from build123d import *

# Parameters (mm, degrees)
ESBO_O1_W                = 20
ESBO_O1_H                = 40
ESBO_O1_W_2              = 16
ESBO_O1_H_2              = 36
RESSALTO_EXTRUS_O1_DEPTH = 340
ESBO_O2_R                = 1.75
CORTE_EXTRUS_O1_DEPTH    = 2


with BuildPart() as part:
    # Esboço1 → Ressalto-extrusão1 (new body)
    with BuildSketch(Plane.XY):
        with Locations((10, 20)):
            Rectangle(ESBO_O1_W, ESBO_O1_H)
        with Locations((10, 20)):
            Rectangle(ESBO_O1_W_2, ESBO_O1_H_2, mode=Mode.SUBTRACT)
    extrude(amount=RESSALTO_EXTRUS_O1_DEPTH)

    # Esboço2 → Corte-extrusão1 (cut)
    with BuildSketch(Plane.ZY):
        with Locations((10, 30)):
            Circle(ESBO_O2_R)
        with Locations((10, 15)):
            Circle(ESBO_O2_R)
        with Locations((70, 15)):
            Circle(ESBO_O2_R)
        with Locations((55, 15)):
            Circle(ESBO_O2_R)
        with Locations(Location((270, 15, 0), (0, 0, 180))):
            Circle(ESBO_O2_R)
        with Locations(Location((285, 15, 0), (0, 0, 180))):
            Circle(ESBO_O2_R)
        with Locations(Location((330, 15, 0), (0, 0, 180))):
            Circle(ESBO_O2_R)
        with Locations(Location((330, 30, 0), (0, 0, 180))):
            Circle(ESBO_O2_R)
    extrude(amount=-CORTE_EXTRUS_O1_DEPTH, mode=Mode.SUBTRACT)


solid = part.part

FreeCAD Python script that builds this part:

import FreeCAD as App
import Part
import Sketcher

doc = App.newDocument("Part")
params = doc.addObject("Spreadsheet::Sheet", "Params")
for row, (alias, value) in enumerate([
    ("sketch1_width", "20 mm"),
    ("sketch1_width2", "16 mm"),
    ("sketch1_height", "40 mm"),
    ("sketch1_height2", "36 mm"),
    ("pad1_length", "340 mm"),
    ("sketch2_diameter", "3.5 mm"),
    ("pocket1_length", "2 mm"),
], start=1):
    params.set(f"A{row}", alias)
    params.set(f"B{row}", "=" + value)
    params.setAlias(f"B{row}", alias)

body = doc.addObject("PartDesign::Body", "Body")

sketch1 = doc.addObject("Sketcher::SketchObject", "Sketch")
body.addObject(sketch1)
sketch1.AttachmentSupport = (doc.XY_Plane, [""])
sketch1.MapMode = "FlatFace"
sketch1.addGeometry([
    Part.LineSegment(App.Vector(0, 40, 0), App.Vector(0, 0, 0)),
    Part.LineSegment(App.Vector(0, 0, 0), App.Vector(20, 0, 0)),
    Part.LineSegment(App.Vector(20, 0, 0), App.Vector(20, 40, 0)),
    Part.LineSegment(App.Vector(20, 40, 0), App.Vector(0, 40, 0)),
    Part.LineSegment(App.Vector(18, 2, 0), App.Vector(2, 2, 0)),
    Part.LineSegment(App.Vector(2, 2, 0), App.Vector(2, 38, 0)),
    Part.LineSegment(App.Vector(2, 38, 0), App.Vector(18, 38, 0)),
    Part.LineSegment(App.Vector(18, 38, 0), App.Vector(18, 2, 0)),
], False)
sketch1.addConstraint([
    Sketcher.Constraint("Coincident", 0, 2, 1, 1),
    Sketcher.Constraint("Coincident", 1, 2, 2, 1),
    Sketcher.Constraint("Coincident", 2, 2, 3, 1),
    Sketcher.Constraint("Coincident", 3, 2, 0, 1),
    Sketcher.Constraint("Coincident", 4, 2, 5, 1),
    Sketcher.Constraint("Coincident", 5, 2, 6, 1),
    Sketcher.Constraint("Coincident", 6, 2, 7, 1),
    Sketcher.Constraint("Coincident", 7, 2, 4, 1),
    Sketcher.Constraint("Vertical", 0),
    Sketcher.Constraint("Horizontal", 1),
    Sketcher.Constraint("Vertical", 2),
    Sketcher.Constraint("Horizontal", 3),
    Sketcher.Constraint("Horizontal", 4),
    Sketcher.Constraint("Vertical", 5),
    Sketcher.Constraint("Horizontal", 6),
    Sketcher.Constraint("Vertical", 7),
    Sketcher.Constraint("Coincident", 0, 2, -1, 1),
    Sketcher.Constraint("DistanceX", 1, 1, 1, 2, 20.0),
    Sketcher.Constraint("DistanceX", 4, 2, 4, 1, 16.0),
    Sketcher.Constraint("DistanceY", 0, 2, 0, 1, 40.0),
    Sketcher.Constraint("DistanceY", 5, 1, 5, 2, 36.0),
    Sketcher.Constraint("DistanceX", -1, 1, 4, 2, 2.0),
    Sketcher.Constraint("DistanceY", -1, 1, 4, 2, 2.0),
])
sketch1.setExpression("Constraints[17]", "Params.sketch1_width")
sketch1.setExpression("Constraints[18]", "Params.sketch1_width2")
sketch1.setExpression("Constraints[19]", "Params.sketch1_height")
sketch1.setExpression("Constraints[20]", "Params.sketch1_height2")
pad1 = doc.addObject("PartDesign::Pad", "Pad")
body.addObject(pad1)
pad1.Profile = sketch1
pad1.setExpression("Length", "Params.pad1_length")

sketch2 = doc.addObject("Sketcher::SketchObject", "Sketch001")
body.addObject(sketch2)
sketch2.AttachmentSupport = (doc.YZ_Plane, [""])
sketch2.MapMode = "FlatFace"
sketch2.addGeometry([
    Part.Circle(App.Vector(30, 10, 0), App.Vector(0, 0, 1), 1.8),
    Part.Circle(App.Vector(15, 10, 0), App.Vector(0, 0, 1), 1.8),
    Part.Circle(App.Vector(15, 70, 0), App.Vector(0, 0, 1), 1.8),
    Part.Circle(App.Vector(15, 55, 0), App.Vector(0, 0, 1), 1.8),
    Part.Circle(App.Vector(15, 270, 0), App.Vector(0, 0, 1), 1.8),
    Part.Circle(App.Vector(15, 285, 0), App.Vector(0, 0, 1), 1.8),
    Part.Circle(App.Vector(15, 330, 0), App.Vector(0, 0, 1), 1.8),
    Part.Circle(App.Vector(30, 330, 0), App.Vector(0, 0, 1), 1.8),
], False)
sketch2.addConstraint([
    Sketcher.Constraint("Equal", 0, 1),
    Sketcher.Constraint("Equal", 1, 2),
    Sketcher.Constraint("Equal", 2, 3),
    Sketcher.Constraint("Equal", 3, 4),
    Sketcher.Constraint("Equal", 4, 5),
    Sketcher.Constraint("Equal", 5, 6),
    Sketcher.Constraint("Equal", 6, 7),
    Sketcher.Constraint("Horizontal", 0, 3, 1, 3),
    Sketcher.Constraint("Horizontal", 6, 3, 7, 3),
    Sketcher.Constraint("Vertical", 1, 3, 2, 3),
    Sketcher.Constraint("Vertical", 2, 3, 3, 3),
    Sketcher.Constraint("Vertical", 3, 3, 4, 3),
    Sketcher.Constraint("Vertical", 4, 3, 5, 3),
    Sketcher.Constraint("Vertical", 5, 3, 6, 3),
    Sketcher.Constraint("Vertical", 0, 3, 7, 3),
    Sketcher.Constraint("Diameter", 0, 3.5),
    Sketcher.Constraint("DistanceX", -1, 1, 0, 3, 30.0),
    Sketcher.Constraint("DistanceY", -1, 1, 0, 3, 10.0),
    Sketcher.Constraint("DistanceX", -1, 1, 1, 3, 15.0),
    Sketcher.Constraint("DistanceY", -1, 1, 2, 3, 70.0),
    Sketcher.Constraint("DistanceY", -1, 1, 3, 3, 55.0),
    Sketcher.Constraint("DistanceY", -1, 1, 4, 3, 270.0),
    Sketcher.Constraint("DistanceY", -1, 1, 5, 3, 285.0),
    Sketcher.Constraint("DistanceY", -1, 1, 6, 3, 330.0),
])
sketch2.setExpression("Constraints[15]", "Params.sketch2_diameter")
pocket1 = doc.addObject("PartDesign::Pocket", "Pocket")
body.addObject(pocket1)
pocket1.Profile = sketch2
pocket1.setExpression("Length", "Params.pocket1_length")
pocket1.Reversed = True

doc.recompute()
